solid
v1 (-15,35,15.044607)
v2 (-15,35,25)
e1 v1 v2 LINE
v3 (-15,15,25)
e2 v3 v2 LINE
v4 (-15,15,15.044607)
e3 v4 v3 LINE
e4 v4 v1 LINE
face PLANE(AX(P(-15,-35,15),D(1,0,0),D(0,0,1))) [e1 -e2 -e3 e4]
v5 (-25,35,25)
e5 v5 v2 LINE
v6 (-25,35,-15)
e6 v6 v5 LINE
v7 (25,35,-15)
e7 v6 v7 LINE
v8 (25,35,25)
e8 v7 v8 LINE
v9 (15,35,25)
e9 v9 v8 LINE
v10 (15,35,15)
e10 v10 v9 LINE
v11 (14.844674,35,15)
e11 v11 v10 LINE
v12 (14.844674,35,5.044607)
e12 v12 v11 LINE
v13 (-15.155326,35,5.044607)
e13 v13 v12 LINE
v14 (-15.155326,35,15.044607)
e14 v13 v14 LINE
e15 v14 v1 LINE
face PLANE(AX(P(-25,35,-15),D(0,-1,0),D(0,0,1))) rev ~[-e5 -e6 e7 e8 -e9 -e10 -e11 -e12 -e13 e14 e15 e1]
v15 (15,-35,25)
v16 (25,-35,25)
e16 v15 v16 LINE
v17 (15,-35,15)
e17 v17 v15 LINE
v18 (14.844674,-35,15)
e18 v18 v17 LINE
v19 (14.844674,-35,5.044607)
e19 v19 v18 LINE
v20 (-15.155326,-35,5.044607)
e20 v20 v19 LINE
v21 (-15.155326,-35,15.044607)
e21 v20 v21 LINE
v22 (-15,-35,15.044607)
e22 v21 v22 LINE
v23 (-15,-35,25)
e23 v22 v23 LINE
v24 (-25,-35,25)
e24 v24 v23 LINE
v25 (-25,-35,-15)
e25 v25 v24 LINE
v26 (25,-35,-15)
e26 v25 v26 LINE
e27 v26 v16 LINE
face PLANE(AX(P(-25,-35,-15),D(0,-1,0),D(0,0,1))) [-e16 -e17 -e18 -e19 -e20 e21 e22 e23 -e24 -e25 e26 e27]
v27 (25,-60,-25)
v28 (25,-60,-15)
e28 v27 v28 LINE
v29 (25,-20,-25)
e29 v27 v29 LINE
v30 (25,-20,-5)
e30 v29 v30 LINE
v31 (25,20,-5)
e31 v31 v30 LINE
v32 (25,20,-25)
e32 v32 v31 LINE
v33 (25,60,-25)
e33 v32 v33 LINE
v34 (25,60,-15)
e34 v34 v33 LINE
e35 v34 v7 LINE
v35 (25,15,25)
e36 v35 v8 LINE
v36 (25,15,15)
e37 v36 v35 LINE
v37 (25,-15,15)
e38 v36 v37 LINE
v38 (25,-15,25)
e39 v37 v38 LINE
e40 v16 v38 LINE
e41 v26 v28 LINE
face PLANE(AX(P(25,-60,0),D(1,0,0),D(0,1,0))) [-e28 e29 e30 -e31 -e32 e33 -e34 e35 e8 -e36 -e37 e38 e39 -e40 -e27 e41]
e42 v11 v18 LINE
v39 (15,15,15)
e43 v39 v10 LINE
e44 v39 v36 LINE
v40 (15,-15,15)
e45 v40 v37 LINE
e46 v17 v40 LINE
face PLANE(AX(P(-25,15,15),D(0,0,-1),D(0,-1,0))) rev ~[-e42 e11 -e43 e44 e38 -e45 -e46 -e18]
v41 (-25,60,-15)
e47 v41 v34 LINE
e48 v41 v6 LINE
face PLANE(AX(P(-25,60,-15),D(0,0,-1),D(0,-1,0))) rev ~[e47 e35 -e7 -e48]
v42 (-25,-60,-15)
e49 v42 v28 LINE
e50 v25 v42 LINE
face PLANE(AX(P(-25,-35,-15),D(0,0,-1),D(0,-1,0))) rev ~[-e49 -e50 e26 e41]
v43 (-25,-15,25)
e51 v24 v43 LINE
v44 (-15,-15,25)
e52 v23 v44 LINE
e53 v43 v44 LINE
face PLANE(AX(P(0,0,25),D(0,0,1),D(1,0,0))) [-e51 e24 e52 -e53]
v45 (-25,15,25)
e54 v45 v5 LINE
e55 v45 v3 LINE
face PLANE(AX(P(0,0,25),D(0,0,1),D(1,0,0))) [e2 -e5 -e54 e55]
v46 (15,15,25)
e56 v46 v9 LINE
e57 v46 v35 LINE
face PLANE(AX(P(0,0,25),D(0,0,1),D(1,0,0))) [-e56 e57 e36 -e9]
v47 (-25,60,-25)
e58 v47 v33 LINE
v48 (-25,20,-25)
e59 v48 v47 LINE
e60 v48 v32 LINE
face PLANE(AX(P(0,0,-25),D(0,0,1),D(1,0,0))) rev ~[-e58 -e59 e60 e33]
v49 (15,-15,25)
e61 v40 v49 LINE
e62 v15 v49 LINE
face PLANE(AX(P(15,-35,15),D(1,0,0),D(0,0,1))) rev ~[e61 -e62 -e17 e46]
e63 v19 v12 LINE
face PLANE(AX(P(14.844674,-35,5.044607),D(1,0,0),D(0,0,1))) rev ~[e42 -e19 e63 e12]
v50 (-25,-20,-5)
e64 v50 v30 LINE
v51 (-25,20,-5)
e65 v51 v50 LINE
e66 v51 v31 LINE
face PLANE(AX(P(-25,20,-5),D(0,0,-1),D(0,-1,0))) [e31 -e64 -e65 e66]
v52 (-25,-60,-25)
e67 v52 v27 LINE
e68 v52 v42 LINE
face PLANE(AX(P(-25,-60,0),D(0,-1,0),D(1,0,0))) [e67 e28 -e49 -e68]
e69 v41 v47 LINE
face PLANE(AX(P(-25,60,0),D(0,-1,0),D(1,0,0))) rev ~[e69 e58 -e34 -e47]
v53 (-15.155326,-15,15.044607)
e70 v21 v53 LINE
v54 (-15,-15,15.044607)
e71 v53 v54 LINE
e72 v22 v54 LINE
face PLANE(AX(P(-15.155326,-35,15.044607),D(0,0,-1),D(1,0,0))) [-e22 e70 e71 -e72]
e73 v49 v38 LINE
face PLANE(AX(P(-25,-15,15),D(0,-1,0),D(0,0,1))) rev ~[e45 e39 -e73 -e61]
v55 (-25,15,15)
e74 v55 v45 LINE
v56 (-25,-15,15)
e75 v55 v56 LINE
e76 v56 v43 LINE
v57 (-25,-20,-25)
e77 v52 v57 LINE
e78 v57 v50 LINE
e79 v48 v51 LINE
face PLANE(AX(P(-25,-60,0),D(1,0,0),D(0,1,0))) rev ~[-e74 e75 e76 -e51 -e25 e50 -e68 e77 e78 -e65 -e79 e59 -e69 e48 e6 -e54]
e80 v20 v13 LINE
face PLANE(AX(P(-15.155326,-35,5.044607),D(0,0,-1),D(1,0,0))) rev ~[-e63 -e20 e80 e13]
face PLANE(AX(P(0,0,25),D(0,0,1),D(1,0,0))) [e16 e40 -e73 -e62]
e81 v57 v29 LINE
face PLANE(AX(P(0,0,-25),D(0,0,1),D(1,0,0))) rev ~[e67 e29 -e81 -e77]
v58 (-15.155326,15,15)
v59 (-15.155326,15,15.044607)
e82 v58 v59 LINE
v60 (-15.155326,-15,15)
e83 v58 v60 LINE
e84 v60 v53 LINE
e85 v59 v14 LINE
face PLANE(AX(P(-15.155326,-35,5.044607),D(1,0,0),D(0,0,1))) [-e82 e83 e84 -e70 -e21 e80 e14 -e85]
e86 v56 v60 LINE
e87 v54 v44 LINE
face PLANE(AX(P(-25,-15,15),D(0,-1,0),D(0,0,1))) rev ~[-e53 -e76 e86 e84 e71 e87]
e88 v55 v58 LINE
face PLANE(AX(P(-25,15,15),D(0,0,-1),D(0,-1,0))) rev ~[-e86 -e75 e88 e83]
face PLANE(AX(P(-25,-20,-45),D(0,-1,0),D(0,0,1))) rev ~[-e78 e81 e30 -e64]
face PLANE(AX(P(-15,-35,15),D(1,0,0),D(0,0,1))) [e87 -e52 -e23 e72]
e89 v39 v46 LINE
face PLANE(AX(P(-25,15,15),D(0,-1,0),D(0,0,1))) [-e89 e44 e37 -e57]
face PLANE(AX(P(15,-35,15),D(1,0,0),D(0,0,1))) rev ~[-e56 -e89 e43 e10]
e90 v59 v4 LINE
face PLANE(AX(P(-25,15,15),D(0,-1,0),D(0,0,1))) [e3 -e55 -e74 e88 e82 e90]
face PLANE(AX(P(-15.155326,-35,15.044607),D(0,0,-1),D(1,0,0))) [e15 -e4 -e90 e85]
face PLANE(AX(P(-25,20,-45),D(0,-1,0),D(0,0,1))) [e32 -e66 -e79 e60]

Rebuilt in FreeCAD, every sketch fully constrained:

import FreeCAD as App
import Part
import Sketcher
from FreeCAD import Vector


def add_polygon(sketch, points):
    """Adds a closed chain of lines whose ends are joined by coincident constraints."""
    first, n = sketch.GeometryCount, len(points)
    for a, b in zip(points, points[1:] + points[:1]):
        sketch.addGeometry(Part.LineSegment(App.Vector(*a, 0), App.Vector(*b, 0)), False)
    for i in range(n):
        sketch.addConstraint(Sketcher.Constraint("Coincident", first + i, 2, first + (i + 1) % n, 1))

doc = App.newDocument("Part")
params = doc.addObject("Spreadsheet::Sheet", "Params")
for row, (alias, value) in enumerate([
    ("sketch1_width", "50 mm"),
    ("sketch1_height", "120 mm"),
    ("pad1_length", "50 mm"),
    ("sketch2_width", "40 mm"),
    ("pocket1_length", "50 mm"),
    ("sketch3_width", "25 mm"),
    ("sketch3_height", "40 mm"),
    ("pocket2_length", "50 mm"),
    ("sketch4_width", "25 mm"),
    ("sketch4_height", "40 mm"),
    ("pocket3_length", "50 mm"),
    ("sketch5_width", "30 mm"),
    ("sketch5_height", "10 mm"),
    ("pocket4_length", "50 mm"),
    ("sketch6_width", "30 mm"),
    ("sketch6_height", "10 mm"),
    ("pocket5_length", "70 mm"),
    ("sketch7_width", "30 mm"),
    ("sketch7_height", "10 mm"),
    ("pocket6_length", "70 mm"),
], start=1):
    params.set(f"A{row}", alias)
    params.set(f"B{row}", "=" + value)
    params.setAlias(f"B{row}", alias)

body = doc.addObject("PartDesign::Body", "Body")

sketch1 = doc.addObject("Sketcher::SketchObject", "Sketch")
body.addObject(sketch1)
sketch1.AttachmentSupport = (doc.XY_Plane, [""])
sketch1.MapMode = "FlatFace"
add_polygon(sketch1, [(-25, 60), (-25, -60), (25, -60), (25, 60)])
sketch1.addConstraint([
    Sketcher.Constraint("Vertical", 0),
    Sketcher.Constraint("Horizontal", 1),
    Sketcher.Constraint("Vertical", 2),
    Sketcher.Constraint("Horizontal", 3),
    Sketcher.Constraint("Symmetric", 0, 2, 2, 2, -1, 1),
    Sketcher.Constraint("DistanceX", 1, 1, 1, 2, 50.0),
    Sketcher.Constraint("DistanceY", 0, 2, 0, 1, 120.0),
])
sketch1.setExpression("Constraints[9]", "Params.sketch1_width")
sketch1.setExpression("Constraints[10]", "Params.sketch1_height")
pad1 = doc.addObject("PartDesign::Pad", "Pad")
body.addObject(pad1)
pad1.Profile = sketch1
pad1.setExpression("Length", "Params.pad1_length")
pad1.Midplane = True

sketch2 = doc.addObject("Sketcher::SketchObject", "Sketch001")
body.addObject(sketch2)
sketch2.AttachmentSupport = (doc.YZ_Plane, [""])
sketch2.MapMode = "FlatFace"
sketch2.AttachmentOffset = App.Placement(Vector(0, 0, -25), App.Rotation())
add_polygon(sketch2, [(20, -5), (20, -45), (-20, -45), (-20, -5)])
sketch2.addConstraint([
    Sketcher.Constraint("Vertical", 0),
    Sketcher.Constraint("Horizontal", 1),
    Sketcher.Constraint("Vertical", 2),
    Sketcher.Constraint("Horizontal", 3),
    Sketcher.Constraint("Equal", 3, 0),
    Sketcher.Constraint("DistanceX", 1, 2, 1, 1, 40.0),
    Sketcher.Constraint("DistanceX", -1, 1, 0, 2, 20.0),
    Sketcher.Constraint("DistanceY", 0, 2, -1, 1, 45.0),
])
sketch2.setExpression("Constraints[9]", "Params.sketch2_width")
pocket1 = doc.addObject("PartDesign::Pocket", "Pocket")
body.addObject(pocket1)
pocket1.Profile = sketch2
pocket1.setExpression("Length", "Params.pocket1_length")
pocket1.Reversed = True

sketch3 = doc.addObject("Sketcher::SketchObject", "Sketch002")
body.addObject(sketch3)
sketch3.AttachmentSupport = (doc.YZ_Plane, [""])
sketch3.MapMode = "FlatFace"
sketch3.AttachmentOffset = App.Placement(Vector(0, 0, -25), App.Rotation())
add_polygon(sketch3, [(60, 25), (60, -15), (35, -15), (35, 25)])
sketch3.addConstraint([
    Sketcher.Constraint("Vertical", 0),
    Sketcher.Constraint("Horizontal", 1),
    Sketcher.Constraint("Vertical", 2),
    Sketcher.Constraint("Horizontal", 3),
    Sketcher.Constraint("DistanceX", 1, 2, 1, 1, 25.0),
    Sketcher.Constraint("DistanceY", 0, 2, 0, 1, 40.0),
    Sketcher.Constraint("DistanceX", -1, 1, 0, 2, 60.0),
    Sketcher.Constraint("DistanceY", 0, 2, -1, 1, 15.0),
])
sketch3.setExpression("Constraints[8]", "Params.sketch3_width")
sketch3.setExpression("Constraints[9]", "Params.sketch3_height")
pocket2 = doc.addObject("PartDesign::Pocket", "Pocket001")
body.addObject(pocket2)
pocket2.Profile = sketch3
pocket2.setExpression("Length", "Params.pocket2_length")
pocket2.Reversed = True

sketch4 = doc.addObject("Sketcher::SketchObject", "Sketch003")
body.addObject(sketch4)
sketch4.AttachmentSupport = (doc.YZ_Plane, [""])
sketch4.MapMode = "FlatFace"
sketch4.AttachmentOffset = App.Placement(Vector(0, 0, -25), App.Rotation())
add_polygon(sketch4, [(-35, 25), (-35, -15), (-60, -15), (-60, 25)])
sketch4.addConstraint([
    Sketcher.Constraint("Vertical", 0),
    Sketcher.Constraint("Horizontal", 1),
    Sketcher.Constraint("Vertical", 2),
    Sketcher.Constraint("Horizontal", 3),
    Sketcher.Constraint("DistanceX", 1, 2, 1, 1, 25.0),
    Sketcher.Constraint("DistanceY", 0, 2, 0, 1, 40.0),
    Sketcher.Constraint("DistanceX", 0, 2, -1, 1, 35.0),
    Sketcher.Constraint("DistanceY", 0, 2, -1, 1, 15.0),
])
sketch4.setExpression("Constraints[8]", "Params.sketch4_width")
sketch4.setExpression("Constraints[9]", "Params.sketch4_height")
pocket3 = doc.addObject("PartDesign::Pocket", "Pocket002")
body.addObject(pocket3)
pocket3.Profile = sketch4
pocket3.setExpression("Length", "Params.pocket3_length")
pocket3.Reversed = True

sketch5 = doc.addObject("Sketcher::SketchObject", "Sketch004")
body.addObject(sketch5)
sketch5.AttachmentSupport = (doc.YZ_Plane, [""])
sketch5.MapMode = "FlatFace"
sketch5.AttachmentOffset = App.Placement(Vector(0, 0, -25), App.Rotation())
add_polygon(sketch5, [(15, 25), (15, 15), (-15, 15), (-15, 25)])
sketch5.addConstraint([
    Sketcher.Constraint("Vertical", 0),
    Sketcher.Constraint("Horizontal", 1),
    Sketcher.Constraint("Vertical", 2),
    Sketcher.Constraint("Horizontal", 3),
    Sketcher.Constraint("DistanceX", 1, 2, 1, 1, 30.0),
    Sketcher.Constraint("DistanceY", 0, 2, 0, 1, 10.0),
    Sketcher.Constraint("DistanceX", -1, 1, 0, 2, 15.0),
    Sketcher.Constraint("DistanceY", -1, 1, 0, 2, 15.0),
])
sketch5.setExpression("Constraints[8]", "Params.sketch5_width")
sketch5.setExpression("Constraints[9]", "Params.sketch5_height")
pocket4 = doc.addObject("PartDesign::Pocket", "Pocket003")
body.addObject(pocket4)
pocket4.Profile = sketch5
pocket4.setExpression("Length", "Params.pocket4_length")
pocket4.Reversed = True

sketch6 = doc.addObject("Sketcher::SketchObject", "Sketch005")
body.addObject(sketch6)
sketch6.AttachmentSupport = (doc.XZ_Plane, [""])
sketch6.MapMode = "FlatFace"
sketch6.AttachmentOffset = App.Placement(Vector(0, 0, 35), App.Rotation())
add_polygon(sketch6, [(-15, 25), (-15, 15), (15, 15), (15, 25)])
sketch6.addConstraint([
    Sketcher.Constraint("Vertical", 0),
    Sketcher.Constraint("Horizontal", 1),
    Sketcher.Constraint("Vertical", 2),
    Sketcher.Constraint("Horizontal", 3),
    Sketcher.Constraint("DistanceX", 1, 1, 1, 2, 30.0),
    Sketcher.Constraint("DistanceY", 0, 2, 0, 1, 10.0),
    Sketcher.Constraint("DistanceX", 0, 2, -1, 1, 15.0),
    Sketcher.Constraint("DistanceY", -1, 1, 0, 2, 15.0),
])
sketch6.setExpression("Constraints[8]", "Params.sketch6_width")
sketch6.setExpression("Constraints[9]", "Params.sketch6_height")
pocket5 = doc.addObject("PartDesign::Pocket", "Pocket004")
body.addObject(pocket5)
pocket5.Profile = sketch6
pocket5.setExpression("Length", "Params.pocket5_length")

sketch7 = doc.addObject("Sketcher::SketchObject", "Sketch006")
body.addObject(sketch7)
sketch7.AttachmentSupport = (doc.XZ_Plane, [""])
sketch7.MapMode = "FlatFace"
sketch7.AttachmentOffset = App.Placement(Vector(0, 0, 35), App.Rotation())
add_polygon(sketch7, [(-15, 15), (-15, 5), (15, 5), (15, 15)])
sketch7.addConstraint([
    Sketcher.Constraint("Vertical", 0),
    Sketcher.Constraint("Horizontal", 1),
    Sketcher.Constraint("Vertical", 2),
    Sketcher.Constraint("Horizontal", 3),
    Sketcher.Constraint("DistanceX", 1, 1, 1, 2, 30.0),
    Sketcher.Constraint("DistanceY", 0, 2, 0, 1, 10.0),
    Sketcher.Constraint("DistanceX", 0, 2, -1, 1, 15.155326),
    Sketcher.Constraint("DistanceY", -1, 1, 0, 2, 5.044607),
])
sketch7.setExpression("Constraints[8]", "Params.sketch7_width")
sketch7.setExpression("Constraints[9]", "Params.sketch7_height")
pocket6 = doc.addObject("PartDesign::Pocket", "Pocket005")
body.addObject(pocket6)
pocket6.Profile = sketch7
pocket6.setExpression("Length", "Params.pocket6_length")

doc.recompute()
